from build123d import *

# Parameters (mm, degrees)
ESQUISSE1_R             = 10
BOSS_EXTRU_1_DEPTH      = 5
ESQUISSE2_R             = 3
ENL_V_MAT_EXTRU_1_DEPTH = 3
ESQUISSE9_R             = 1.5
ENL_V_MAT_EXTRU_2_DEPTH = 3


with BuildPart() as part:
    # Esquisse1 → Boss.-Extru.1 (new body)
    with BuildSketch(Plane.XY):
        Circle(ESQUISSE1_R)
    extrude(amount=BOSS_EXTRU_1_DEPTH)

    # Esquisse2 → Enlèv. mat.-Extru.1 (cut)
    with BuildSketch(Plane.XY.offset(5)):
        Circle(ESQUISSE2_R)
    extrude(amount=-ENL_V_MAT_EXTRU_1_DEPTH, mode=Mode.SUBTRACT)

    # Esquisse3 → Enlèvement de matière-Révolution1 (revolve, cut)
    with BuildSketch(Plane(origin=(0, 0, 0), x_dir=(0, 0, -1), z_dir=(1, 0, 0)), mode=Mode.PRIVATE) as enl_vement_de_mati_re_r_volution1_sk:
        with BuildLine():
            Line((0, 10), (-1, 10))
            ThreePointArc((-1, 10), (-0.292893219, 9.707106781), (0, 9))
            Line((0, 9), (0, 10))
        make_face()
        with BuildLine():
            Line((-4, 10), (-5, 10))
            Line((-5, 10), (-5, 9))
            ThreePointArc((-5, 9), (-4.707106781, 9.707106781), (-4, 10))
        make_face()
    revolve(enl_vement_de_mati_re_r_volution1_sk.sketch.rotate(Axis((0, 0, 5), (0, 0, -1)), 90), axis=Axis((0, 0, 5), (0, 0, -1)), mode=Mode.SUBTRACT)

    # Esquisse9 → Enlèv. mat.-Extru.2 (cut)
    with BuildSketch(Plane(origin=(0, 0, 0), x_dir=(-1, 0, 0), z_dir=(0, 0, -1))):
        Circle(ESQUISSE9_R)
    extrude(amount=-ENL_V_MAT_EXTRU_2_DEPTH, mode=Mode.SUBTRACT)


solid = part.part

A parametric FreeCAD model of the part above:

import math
import FreeCAD as App
import Part
import Sketcher

V = App.Vector

doc = App.newDocument("Part")
body = doc.addObject("PartDesign::Body", "Body")

sketch1 = doc.addObject("Sketcher::SketchObject", "Sketch")
body.addObject(sketch1)
sketch1.AttachmentSupport = (doc.XY_Plane, [""])
sketch1.MapMode = "FlatFace"
sketch1.addGeometry(Part.Circle(V(0, 0, 0), V(0, 0, 1), 10), False)
sketch1.addConstraint(Sketcher.Constraint("Coincident", 0, 3, -1, 1))
sketch1.addConstraint(Sketcher.Constraint("Diameter", 0, 20.0))
pad1 = doc.addObject("PartDesign::Pad", "Pad")
body.addObject(pad1)
pad1.Profile = sketch1
pad1.Length = 5

sketch2 = doc.addObject("Sketcher::SketchObject", "Sketch001")
body.addObject(sketch2)
sketch2.AttachmentSupport = (doc.XY_Plane, [""])
sketch2.MapMode = "FlatFace"
sketch2.AttachmentOffset = App.Placement(V(0, 0, 5), App.Rotation())
sketch2.addGeometry(Part.Circle(V(0, 0, 0), V(0, 0, 1), 3), False)
sketch2.addConstraint(Sketcher.Constraint("Coincident", 0, 3, -1, 1))
sketch2.addConstraint(Sketcher.Constraint("Diameter", 0, 6.0))
pocket1 = doc.addObject("PartDesign::Pocket", "Pocket")
body.addObject(pocket1)
pocket1.Profile = sketch2
pocket1.Length = 3

sketch3 = doc.addObject("Sketcher::SketchObject", "Sketch002")
body.addObject(sketch3)
sketch3.AttachmentSupport = (doc.YZ_Plane, [""])
sketch3.MapMode = "FlatFace"
sketch3.addGeometry(Part.LineSegment(V(10, 0, 0), V(10, 1, 0)), False)
sketch3.addGeometry(Part.ArcOfCircle(Part.Circle(V(9, 1, 0), V(0, 0, 1), 1), math.radians(-90), math.radians(0)), False)
sketch3.addGeometry(Part.LineSegment(V(9, 0, 0), V(10, 0, 0)), False)
sketch3.addGeometry(Part.LineSegment(V(10, 4, 0), V(10, 5, 0)), False)
sketch3.addGeometry(Part.LineSegment(V(10, 5, 0), V(9, 5, 0)), False)
sketch3.addGeometry(Part.ArcOfCircle(Part.Circle(V(9, 4, 0), V(0, 0, 1), 1), math.radians(0), math.radians(90)), False)
sketch3.addConstraint(Sketcher.Constraint("Tangent", 0, 2, 1, 2))
sketch3.addConstraint(Sketcher.Constraint("Tangent", 1, 1, 2, 1))
sketch3.addConstraint(Sketcher.Constraint("Coincident", 2, 2, 0, 1))
sketch3.addConstraint(Sketcher.Constraint("Coincident", 3, 2, 4, 1))
sketch3.addConstraint(Sketcher.Constraint("Tangent", 4, 2, 5, 2))
sketch3.addConstraint(Sketcher.Constraint("Tangent", 5, 1, 3, 1))
sketch3.addConstraint(Sketcher.Constraint("Vertical", 0))
sketch3.addConstraint(Sketcher.Constraint("Horizontal", 2))
sketch3.addConstraint(Sketcher.Constraint("Vertical", 3))
sketch3.addConstraint(Sketcher.Constraint("Horizontal", 4))
sketch3.addConstraint(Sketcher.Constraint("Equal", 1, 5))
sketch3.addConstraint(Sketcher.Constraint("PointOnObject", 1, 1, -1))
sketch3.addConstraint(Sketcher.Constraint("Vertical", 1, 3, 5, 3))
sketch3.addConstraint(Sketcher.Constraint("Radius", 1, 1.0))
sketch3.addConstraint(Sketcher.Constraint("DistanceX", -1, 1, 1, 3, 9.0))
sketch3.addConstraint(Sketcher.Constraint("DistanceY", -1, 1, 5, 3, 4.0))
groove = doc.addObject("PartDesign::Groove", "Groove")
body.addObject(groove)
groove.Profile = sketch3
groove.ReferenceAxis = (sketch3, ["V_Axis"])
groove.Angle = 360

sketch4 = doc.addObject("Sketcher::SketchObject", "Sketch003")
body.addObject(sketch4)
sketch4.AttachmentSupport = (doc.XY_Plane, [""])
sketch4.MapMode = "FlatFace"
sketch4.addGeometry(Part.Circle(V(0, 0, 0), V(0, 0, 1), 1.5), False)
sketch4.addConstraint(Sketcher.Constraint("Coincident", 0, 3, -1, 1))
sketch4.addConstraint(Sketcher.Constraint("Diameter", 0, 3.0))
pocket2 = doc.addObject("PartDesign::Pocket", "Pocket001")
body.addObject(pocket2)
pocket2.Profile = sketch4
pocket2.Length = 3
pocket2.Reversed = True

doc.recompute()
